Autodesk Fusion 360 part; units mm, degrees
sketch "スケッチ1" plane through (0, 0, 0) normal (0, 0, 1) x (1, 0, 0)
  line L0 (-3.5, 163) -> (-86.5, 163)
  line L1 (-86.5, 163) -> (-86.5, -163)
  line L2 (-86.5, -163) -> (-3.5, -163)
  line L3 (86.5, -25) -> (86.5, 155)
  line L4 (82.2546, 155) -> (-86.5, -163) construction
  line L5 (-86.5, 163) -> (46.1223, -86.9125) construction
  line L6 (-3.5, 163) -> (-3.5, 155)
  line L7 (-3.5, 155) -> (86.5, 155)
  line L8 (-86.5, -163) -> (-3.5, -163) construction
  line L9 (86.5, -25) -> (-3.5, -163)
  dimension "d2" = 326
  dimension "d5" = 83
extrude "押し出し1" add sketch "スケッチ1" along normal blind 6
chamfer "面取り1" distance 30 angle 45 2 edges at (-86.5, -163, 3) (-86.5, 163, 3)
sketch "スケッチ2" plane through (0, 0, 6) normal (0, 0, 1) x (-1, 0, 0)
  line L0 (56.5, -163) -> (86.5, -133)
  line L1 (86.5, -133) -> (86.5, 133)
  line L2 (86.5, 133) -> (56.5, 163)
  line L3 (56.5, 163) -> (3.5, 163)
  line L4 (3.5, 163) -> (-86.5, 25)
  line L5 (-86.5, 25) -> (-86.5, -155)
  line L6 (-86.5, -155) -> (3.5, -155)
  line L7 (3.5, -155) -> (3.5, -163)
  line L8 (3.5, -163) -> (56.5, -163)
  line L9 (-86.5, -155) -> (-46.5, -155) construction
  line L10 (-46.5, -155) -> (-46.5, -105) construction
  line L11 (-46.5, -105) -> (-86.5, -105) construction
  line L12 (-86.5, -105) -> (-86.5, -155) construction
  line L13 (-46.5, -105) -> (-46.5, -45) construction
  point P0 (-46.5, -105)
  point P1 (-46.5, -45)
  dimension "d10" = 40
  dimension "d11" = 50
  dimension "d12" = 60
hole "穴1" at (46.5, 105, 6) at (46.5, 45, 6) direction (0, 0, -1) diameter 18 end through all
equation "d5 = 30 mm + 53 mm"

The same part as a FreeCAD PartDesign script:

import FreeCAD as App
import Part
import Sketcher


def edges_at(feature, points):
    """Names of the edges that pass closest to the given points."""
    edges = feature.Shape.Edges
    near = lambda p: min(range(len(edges)), key=lambda i: edges[i].distToShape(Part.Vertex(*p))[0])
    return sorted({f"Edge{near(p) + 1}" for p in points})

doc = App.newDocument("Part")
body = doc.addObject("PartDesign::Body", "Body")

sketch1 = body.newObject("Sketcher::SketchObject", "Sketch")
sketch1.AttachmentSupport = (doc.getObject("XY_Plane"), [""])
sketch1.MapMode = "FlatFace"
sketch1.addGeometry(Part.LineSegment(App.Vector(-4, 155, 0), App.Vector(-4, 163, 0)), False)
sketch1.addGeometry(Part.LineSegment(App.Vector(-4, 163, 0), App.Vector(-86, 163, 0)), False)
sketch1.addGeometry(Part.LineSegment(App.Vector(-86, 163, 0), App.Vector(-86, -163, 0)), False)
sketch1.addGeometry(Part.LineSegment(App.Vector(-86, -163, 0), App.Vector(-4, -163, 0)), False)
sketch1.addGeometry(Part.LineSegment(App.Vector(-4, -163, 0), App.Vector(86, -25, 0)), False)
sketch1.addGeometry(Part.LineSegment(App.Vector(86, -25, 0), App.Vector(86, 155, 0)), False)
sketch1.addGeometry(Part.LineSegment(App.Vector(86, 155, 0), App.Vector(-4, 155, 0)), False)
sketch1.addConstraint(Sketcher.Constraint("Coincident", 0, 2, 1, 1))
sketch1.addConstraint(Sketcher.Constraint("Coincident", 1, 2, 2, 1))
sketch1.addConstraint(Sketcher.Constraint("Coincident", 2, 2, 3, 1))
sketch1.addConstraint(Sketcher.Constraint("Coincident", 3, 2, 4, 1))
sketch1.addConstraint(Sketcher.Constraint("Coincident", 4, 2, 5, 1))
sketch1.addConstraint(Sketcher.Constraint("Coincident", 5, 2, 6, 1))
sketch1.addConstraint(Sketcher.Constraint("Coincident", 6, 2, 0, 1))
sketch1.addConstraint(Sketcher.Constraint("Vertical", 0))
sketch1.addConstraint(Sketcher.Constraint("Horizontal", 1))
sketch1.addConstraint(Sketcher.Constraint("Vertical", 2))
sketch1.addConstraint(Sketcher.Constraint("Horizontal", 3))
sketch1.addConstraint(Sketcher.Constraint("Vertical", 5))
sketch1.addConstraint(Sketcher.Constraint("Horizontal", 6))
sketch1.addConstraint(Sketcher.Constraint("Symmetric", 0, 2, 3, 2, -1))
sketch1.addConstraint(Sketcher.Constraint("DistanceX", 1, 2, 1, 1, 83.0))
sketch1.addConstraint(Sketcher.Constraint("DistanceY", 2, 2, 2, 1, 326.0))
sketch1.addConstraint(Sketcher.Constraint("DistanceX", 6, 2, 6, 1, 90.0))
sketch1.addConstraint(Sketcher.Constraint("DistanceY", 0, 1, 0, 2, 8.0))
sketch1.addConstraint(Sketcher.Constraint("DistanceY", 5, 1, 5, 2, 180.0))
sketch1.addConstraint(Sketcher.Constraint("DistanceX", 0, 2, -1, 1, 3.5))
pad1 = body.newObject("PartDesign::Pad", "Pad")
pad1.Profile = sketch1
pad1.Length = 6
doc.recompute()

chamfer = body.newObject("PartDesign::Chamfer", "Chamfer")
chamfer.Base = (pad1, edges_at(pad1, [(-86.5, -163, 3), (-86.5, 163, 3)]))
chamfer.Size = 30

sketch2 = body.newObject("Sketcher::SketchObject", "Sketch001")
sketch2.AttachmentSupport = (doc.getObject("XY_Plane"), [""])
sketch2.MapMode = "FlatFace"
sketch2.AttachmentOffset = App.Placement(App.Vector(0, 0, 6), App.Rotation())
sketch2.addGeometry(Part.Circle(App.Vector(46, 105, 0), App.Vector(0, 0, 1), 9), False)
sketch2.addGeometry(Part.Circle(App.Vector(46, 45, 0), App.Vector(0, 0, 1), 9), False)
sketch2.addConstraint(Sketcher.Constraint("Equal", 0, 1))
sketch2.addConstraint(Sketcher.Constraint("Vertical", 0, 3, 1, 3))
sketch2.addConstraint(Sketcher.Constraint("Diameter", 0, 18.0))
sketch2.addConstraint(Sketcher.Constraint("DistanceY", -1, 1, 0, 3, 105.0))
sketch2.addConstraint(Sketcher.Constraint("DistanceY", -1, 1, 1, 3, 45.0))
sketch2.addConstraint(Sketcher.Constraint("DistanceX", -1, 1, 0, 3, 46.5))
doc.recompute()
hole = body.newObject("PartDesign::Hole", "Hole")
hole.Profile = sketch2
hole.ThreadType = "None"
hole.Diameter = 18
hole.DepthType = "ThroughAll"

doc.recompute()
